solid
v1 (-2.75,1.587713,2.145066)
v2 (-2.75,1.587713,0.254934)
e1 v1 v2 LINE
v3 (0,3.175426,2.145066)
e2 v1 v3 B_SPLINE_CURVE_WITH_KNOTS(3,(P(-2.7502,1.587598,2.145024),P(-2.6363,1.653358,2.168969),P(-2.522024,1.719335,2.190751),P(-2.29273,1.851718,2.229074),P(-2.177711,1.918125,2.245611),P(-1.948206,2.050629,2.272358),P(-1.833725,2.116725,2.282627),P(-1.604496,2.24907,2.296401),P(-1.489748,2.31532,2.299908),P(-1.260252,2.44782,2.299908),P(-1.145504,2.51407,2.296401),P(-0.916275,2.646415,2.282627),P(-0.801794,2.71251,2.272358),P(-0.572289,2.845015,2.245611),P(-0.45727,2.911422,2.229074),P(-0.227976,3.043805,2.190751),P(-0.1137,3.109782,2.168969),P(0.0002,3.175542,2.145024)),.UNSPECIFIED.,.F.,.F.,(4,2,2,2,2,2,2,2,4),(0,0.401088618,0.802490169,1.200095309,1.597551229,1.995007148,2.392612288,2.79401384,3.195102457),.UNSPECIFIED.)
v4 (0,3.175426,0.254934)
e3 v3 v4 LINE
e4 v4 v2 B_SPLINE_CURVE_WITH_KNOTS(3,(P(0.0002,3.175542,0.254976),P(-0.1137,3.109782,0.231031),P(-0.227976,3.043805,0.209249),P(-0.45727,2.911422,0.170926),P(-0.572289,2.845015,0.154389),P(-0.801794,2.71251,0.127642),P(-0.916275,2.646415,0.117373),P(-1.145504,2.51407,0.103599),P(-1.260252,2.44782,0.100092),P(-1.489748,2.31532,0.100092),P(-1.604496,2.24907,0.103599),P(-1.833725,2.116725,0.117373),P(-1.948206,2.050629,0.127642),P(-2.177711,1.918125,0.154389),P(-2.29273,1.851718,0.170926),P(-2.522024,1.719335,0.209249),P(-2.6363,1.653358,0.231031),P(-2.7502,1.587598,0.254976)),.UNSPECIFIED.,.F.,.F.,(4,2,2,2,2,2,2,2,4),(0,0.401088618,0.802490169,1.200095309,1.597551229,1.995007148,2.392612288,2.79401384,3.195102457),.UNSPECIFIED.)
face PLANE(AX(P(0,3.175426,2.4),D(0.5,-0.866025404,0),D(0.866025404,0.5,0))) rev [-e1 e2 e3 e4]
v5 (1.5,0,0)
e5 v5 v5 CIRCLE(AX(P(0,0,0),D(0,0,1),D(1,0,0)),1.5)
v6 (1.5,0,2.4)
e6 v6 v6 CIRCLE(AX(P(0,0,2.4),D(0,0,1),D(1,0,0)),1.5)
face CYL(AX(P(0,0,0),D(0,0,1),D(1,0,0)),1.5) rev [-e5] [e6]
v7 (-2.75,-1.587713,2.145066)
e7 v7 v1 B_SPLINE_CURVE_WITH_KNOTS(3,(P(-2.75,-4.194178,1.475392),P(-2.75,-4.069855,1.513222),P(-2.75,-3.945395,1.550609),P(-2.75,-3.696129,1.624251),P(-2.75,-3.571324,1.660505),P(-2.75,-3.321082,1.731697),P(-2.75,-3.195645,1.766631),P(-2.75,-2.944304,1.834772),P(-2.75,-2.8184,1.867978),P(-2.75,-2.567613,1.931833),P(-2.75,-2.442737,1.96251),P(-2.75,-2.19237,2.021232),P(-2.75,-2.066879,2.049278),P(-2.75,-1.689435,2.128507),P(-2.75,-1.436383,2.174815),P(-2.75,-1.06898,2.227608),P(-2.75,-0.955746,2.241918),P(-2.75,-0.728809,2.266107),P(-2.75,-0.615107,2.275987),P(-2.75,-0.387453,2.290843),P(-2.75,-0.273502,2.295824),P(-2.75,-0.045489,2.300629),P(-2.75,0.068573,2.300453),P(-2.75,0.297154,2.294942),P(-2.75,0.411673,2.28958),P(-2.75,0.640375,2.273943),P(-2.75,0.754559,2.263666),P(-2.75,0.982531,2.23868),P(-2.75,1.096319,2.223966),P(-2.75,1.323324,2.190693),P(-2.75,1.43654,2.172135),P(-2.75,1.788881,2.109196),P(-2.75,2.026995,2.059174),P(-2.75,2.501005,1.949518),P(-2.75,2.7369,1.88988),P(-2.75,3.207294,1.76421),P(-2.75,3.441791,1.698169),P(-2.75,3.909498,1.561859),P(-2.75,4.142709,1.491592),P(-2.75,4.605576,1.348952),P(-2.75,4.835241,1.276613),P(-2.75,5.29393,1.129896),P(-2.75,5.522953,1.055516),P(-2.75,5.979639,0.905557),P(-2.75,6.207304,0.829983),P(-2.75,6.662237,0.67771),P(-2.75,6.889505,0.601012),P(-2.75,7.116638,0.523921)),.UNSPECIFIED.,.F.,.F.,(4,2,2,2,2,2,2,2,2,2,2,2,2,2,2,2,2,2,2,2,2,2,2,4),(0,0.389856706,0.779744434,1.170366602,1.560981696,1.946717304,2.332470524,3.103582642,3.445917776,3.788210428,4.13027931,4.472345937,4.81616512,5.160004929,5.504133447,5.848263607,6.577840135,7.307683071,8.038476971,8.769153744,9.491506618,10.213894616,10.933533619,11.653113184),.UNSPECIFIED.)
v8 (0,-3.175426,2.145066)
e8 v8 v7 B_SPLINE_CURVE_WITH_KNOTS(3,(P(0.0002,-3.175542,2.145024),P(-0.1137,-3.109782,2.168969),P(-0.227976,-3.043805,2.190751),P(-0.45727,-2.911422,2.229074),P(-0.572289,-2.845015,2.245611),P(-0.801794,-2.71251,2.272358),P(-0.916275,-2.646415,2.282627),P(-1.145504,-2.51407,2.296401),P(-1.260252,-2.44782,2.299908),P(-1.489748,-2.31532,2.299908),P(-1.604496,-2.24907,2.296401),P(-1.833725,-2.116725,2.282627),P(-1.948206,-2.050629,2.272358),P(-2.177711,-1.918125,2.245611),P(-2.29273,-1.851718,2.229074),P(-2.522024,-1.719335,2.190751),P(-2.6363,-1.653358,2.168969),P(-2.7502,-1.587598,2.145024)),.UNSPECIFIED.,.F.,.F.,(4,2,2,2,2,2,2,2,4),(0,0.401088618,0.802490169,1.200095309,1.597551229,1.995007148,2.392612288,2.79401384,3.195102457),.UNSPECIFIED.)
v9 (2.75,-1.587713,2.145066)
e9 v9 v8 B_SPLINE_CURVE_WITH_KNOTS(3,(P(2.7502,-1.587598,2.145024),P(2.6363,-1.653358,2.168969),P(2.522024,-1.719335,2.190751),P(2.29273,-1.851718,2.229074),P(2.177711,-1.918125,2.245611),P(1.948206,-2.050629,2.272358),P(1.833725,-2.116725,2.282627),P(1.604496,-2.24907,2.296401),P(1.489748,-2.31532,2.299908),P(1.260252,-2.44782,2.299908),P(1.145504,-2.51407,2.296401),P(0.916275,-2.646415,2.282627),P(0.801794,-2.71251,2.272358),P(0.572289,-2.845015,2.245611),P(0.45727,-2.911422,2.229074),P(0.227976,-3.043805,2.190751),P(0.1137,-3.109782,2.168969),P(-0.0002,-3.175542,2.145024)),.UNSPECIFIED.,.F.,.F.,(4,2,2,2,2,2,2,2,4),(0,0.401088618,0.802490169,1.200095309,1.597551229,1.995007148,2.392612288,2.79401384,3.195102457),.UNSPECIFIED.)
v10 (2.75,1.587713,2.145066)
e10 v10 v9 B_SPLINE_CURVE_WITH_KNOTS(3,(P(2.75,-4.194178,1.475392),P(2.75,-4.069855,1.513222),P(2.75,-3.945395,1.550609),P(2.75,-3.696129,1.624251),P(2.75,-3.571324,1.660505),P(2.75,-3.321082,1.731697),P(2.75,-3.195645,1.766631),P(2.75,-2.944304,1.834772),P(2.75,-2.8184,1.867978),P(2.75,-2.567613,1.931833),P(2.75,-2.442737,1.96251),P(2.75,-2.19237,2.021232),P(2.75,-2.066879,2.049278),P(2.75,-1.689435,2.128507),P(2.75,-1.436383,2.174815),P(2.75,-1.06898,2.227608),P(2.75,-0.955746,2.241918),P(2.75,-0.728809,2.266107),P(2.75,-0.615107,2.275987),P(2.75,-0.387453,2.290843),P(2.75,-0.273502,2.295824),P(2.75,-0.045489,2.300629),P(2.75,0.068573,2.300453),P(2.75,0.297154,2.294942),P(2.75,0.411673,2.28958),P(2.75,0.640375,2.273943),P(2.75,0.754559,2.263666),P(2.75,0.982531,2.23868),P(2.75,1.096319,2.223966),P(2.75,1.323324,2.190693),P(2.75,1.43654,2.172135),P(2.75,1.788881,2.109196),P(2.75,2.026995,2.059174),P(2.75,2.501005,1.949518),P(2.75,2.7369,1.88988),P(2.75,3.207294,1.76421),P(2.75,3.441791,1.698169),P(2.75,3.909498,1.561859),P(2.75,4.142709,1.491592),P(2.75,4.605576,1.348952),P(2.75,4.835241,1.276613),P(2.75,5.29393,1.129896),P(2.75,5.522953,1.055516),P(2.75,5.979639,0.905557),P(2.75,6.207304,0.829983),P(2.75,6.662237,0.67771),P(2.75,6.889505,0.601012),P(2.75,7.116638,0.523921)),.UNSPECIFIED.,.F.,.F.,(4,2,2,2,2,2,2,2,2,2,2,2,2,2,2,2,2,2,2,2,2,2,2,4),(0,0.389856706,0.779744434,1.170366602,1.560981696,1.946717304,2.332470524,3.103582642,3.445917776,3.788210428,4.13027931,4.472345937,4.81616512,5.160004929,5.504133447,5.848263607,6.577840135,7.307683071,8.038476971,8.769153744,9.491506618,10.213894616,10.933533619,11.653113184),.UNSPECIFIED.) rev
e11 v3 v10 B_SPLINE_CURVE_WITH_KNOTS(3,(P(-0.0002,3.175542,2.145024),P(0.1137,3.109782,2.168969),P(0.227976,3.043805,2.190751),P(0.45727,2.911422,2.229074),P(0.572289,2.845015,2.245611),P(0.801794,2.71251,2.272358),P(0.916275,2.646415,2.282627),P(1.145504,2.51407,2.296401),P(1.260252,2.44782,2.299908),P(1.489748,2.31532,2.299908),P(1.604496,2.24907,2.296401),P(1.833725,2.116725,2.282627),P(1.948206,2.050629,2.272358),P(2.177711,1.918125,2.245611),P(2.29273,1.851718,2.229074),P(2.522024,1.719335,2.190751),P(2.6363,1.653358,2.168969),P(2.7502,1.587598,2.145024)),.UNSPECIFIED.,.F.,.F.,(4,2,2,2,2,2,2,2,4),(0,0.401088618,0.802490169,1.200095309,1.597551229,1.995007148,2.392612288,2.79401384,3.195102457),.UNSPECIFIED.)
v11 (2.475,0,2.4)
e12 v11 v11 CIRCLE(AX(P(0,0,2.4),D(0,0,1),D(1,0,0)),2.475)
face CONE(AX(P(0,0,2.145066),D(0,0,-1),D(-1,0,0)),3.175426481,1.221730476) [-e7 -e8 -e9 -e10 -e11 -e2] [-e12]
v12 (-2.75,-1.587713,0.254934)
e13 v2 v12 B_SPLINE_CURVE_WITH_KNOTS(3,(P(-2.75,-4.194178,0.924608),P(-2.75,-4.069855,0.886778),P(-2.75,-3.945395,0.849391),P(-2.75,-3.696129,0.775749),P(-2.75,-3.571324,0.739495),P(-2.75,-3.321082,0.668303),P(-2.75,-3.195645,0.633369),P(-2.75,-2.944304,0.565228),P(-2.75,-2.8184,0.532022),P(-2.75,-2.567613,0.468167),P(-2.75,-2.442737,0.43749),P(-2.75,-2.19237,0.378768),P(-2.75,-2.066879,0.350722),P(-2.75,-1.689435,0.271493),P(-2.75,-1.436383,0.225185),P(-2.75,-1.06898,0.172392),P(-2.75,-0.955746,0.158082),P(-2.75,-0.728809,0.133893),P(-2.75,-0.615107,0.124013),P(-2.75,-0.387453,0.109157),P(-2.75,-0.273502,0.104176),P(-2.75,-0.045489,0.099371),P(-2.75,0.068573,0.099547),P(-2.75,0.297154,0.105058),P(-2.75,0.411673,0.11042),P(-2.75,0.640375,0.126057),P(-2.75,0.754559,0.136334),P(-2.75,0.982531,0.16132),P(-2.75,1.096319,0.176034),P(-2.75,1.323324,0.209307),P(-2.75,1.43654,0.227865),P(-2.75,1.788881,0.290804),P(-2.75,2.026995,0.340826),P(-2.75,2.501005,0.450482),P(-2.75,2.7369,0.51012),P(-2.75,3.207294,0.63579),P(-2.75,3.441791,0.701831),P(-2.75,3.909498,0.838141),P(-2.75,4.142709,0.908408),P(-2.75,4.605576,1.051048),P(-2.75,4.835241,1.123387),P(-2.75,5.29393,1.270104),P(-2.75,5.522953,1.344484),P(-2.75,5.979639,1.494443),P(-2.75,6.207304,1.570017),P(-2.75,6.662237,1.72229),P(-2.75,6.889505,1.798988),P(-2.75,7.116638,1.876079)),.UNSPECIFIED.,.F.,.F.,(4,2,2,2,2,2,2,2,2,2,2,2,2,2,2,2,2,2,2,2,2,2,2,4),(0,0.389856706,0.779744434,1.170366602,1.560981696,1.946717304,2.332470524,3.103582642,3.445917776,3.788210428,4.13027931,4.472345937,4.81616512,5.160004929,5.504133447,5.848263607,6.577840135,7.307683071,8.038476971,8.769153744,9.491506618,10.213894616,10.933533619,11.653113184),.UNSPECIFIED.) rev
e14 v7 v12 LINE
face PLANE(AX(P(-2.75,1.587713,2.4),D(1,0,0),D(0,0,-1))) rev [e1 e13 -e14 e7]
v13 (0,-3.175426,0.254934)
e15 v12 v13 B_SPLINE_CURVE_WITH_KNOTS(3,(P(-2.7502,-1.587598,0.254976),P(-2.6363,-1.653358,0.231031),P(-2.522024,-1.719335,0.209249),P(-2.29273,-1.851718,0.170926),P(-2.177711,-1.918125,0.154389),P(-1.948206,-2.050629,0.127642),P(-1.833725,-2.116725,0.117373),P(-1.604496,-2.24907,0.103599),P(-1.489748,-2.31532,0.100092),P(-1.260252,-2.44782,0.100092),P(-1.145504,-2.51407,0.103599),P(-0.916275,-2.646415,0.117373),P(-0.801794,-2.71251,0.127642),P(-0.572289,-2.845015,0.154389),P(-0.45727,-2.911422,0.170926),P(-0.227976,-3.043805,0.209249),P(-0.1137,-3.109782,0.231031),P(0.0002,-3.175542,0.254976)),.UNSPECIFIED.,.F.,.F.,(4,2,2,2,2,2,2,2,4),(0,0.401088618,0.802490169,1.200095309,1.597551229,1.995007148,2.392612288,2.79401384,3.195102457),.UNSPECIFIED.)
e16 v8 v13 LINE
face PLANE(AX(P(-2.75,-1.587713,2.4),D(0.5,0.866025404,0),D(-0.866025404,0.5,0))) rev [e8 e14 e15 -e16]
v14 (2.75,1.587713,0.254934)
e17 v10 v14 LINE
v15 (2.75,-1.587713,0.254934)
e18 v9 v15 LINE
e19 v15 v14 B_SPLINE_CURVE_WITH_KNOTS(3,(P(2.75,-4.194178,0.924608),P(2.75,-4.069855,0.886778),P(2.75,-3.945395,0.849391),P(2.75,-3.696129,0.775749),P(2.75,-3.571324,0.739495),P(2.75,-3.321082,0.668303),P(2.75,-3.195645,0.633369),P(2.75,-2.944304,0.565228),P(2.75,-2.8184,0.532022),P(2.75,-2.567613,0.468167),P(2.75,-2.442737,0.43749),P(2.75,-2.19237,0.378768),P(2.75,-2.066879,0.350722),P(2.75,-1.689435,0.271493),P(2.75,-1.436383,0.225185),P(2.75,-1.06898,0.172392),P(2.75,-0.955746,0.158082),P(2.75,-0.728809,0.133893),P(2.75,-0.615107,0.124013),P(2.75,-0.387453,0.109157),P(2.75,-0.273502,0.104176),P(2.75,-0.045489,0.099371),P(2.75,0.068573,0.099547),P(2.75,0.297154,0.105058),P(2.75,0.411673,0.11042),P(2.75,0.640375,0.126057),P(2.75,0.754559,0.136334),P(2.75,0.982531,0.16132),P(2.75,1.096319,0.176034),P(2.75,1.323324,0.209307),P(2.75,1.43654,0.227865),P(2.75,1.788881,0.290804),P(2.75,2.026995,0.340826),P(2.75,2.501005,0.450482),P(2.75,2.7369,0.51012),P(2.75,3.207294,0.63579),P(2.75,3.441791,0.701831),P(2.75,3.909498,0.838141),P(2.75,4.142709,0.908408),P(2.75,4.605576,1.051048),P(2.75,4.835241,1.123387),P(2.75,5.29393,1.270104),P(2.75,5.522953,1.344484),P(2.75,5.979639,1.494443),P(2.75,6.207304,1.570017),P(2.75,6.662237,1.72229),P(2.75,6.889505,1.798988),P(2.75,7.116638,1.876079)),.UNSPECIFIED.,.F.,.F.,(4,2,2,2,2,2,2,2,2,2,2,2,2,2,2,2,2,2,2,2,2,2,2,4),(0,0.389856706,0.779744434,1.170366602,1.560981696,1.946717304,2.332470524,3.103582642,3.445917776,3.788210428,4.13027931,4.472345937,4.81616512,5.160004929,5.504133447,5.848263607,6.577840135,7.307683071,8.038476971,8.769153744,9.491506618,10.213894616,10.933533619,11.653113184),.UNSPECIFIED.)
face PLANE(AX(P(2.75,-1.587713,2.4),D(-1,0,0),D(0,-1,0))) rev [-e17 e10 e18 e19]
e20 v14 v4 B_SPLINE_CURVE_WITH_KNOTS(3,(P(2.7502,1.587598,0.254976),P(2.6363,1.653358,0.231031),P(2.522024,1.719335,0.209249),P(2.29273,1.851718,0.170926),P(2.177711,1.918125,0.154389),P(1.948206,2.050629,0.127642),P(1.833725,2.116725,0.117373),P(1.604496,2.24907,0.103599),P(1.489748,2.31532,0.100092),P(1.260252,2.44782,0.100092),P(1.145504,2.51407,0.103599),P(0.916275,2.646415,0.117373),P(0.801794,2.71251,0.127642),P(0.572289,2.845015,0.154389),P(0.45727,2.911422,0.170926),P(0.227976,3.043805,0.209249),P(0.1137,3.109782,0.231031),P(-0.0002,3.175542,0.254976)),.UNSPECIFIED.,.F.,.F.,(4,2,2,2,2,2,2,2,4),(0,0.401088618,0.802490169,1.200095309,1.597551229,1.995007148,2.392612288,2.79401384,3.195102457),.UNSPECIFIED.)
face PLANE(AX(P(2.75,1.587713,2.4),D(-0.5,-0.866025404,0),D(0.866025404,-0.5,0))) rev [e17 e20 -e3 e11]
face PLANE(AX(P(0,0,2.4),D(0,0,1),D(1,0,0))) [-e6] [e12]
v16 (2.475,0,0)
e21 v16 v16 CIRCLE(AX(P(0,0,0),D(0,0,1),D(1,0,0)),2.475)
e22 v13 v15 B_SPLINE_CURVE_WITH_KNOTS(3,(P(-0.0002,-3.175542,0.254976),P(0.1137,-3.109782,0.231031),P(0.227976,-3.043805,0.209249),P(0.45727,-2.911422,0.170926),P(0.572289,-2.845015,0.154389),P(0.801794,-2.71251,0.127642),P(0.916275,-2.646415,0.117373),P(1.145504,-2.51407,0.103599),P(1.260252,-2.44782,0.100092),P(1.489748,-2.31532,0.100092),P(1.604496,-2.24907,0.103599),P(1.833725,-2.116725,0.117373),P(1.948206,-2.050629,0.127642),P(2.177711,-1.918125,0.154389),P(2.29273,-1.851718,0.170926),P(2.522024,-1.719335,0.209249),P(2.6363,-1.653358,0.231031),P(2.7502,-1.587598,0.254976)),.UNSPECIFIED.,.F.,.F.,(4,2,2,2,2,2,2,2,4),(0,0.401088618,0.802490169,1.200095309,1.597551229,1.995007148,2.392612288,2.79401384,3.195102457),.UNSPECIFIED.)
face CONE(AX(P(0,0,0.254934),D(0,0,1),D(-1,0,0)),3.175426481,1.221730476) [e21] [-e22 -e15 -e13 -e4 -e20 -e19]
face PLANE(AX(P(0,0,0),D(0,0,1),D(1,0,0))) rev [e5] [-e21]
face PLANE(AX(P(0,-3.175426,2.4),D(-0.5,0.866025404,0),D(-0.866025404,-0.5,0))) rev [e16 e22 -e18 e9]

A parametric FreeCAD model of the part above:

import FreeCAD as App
import Part
import Sketcher
Q = App.Units.Quantity

doc = App.newDocument("Part")
params = doc.addObject("Spreadsheet::Sheet", "Params")
for row, (alias, value) in enumerate([
    ("pad1_length", "2.4 mm"),
    ("groove_angle", "360 deg"),
    ("sketch3_diameter", "3 mm"),
], start=1):
    params.set(f"A{row}", alias)
    params.set(f"B{row}", "=" + value)
    params.setAlias(f"B{row}", alias)

body = doc.addObject("PartDesign::Body", "Body")

# Sketch on XY plane
sketch1 = body.newObject("Sketcher::SketchObject", "Sketch")
sketch1.AttachmentSupport = (doc.getObject("XY_Plane"), [""])
sketch1.MapMode = "FlatFace"
sketch1.addGeometry(Part.LineSegment(App.Vector(0, 3.2, 0), App.Vector(-2.8, 1.6, 0)), False)
sketch1.addGeometry(Part.LineSegment(App.Vector(-2.8, 1.6, 0), App.Vector(-2.8, -1.6, 0)), False)
sketch1.addGeometry(Part.LineSegment(App.Vector(-2.8, -1.6, 0), App.Vector(0, -3.2, 0)), False)
sketch1.addGeometry(Part.LineSegment(App.Vector(0, -3.2, 0), App.Vector(2.8, -1.6, 0)), False)
sketch1.addGeometry(Part.LineSegment(App.Vector(2.8, -1.6, 0), App.Vector(2.8, 1.6, 0)), False)
sketch1.addGeometry(Part.LineSegment(App.Vector(2.8, 1.6, 0), App.Vector(0, 3.2, 0)), False)
sketch1.addConstraint(Sketcher.Constraint("Coincident", 0, 2, 1, 1))
sketch1.addConstraint(Sketcher.Constraint("Coincident", 1, 2, 2, 1))
sketch1.addConstraint(Sketcher.Constraint("Coincident", 2, 2, 3, 1))
sketch1.addConstraint(Sketcher.Constraint("Coincident", 3, 2, 4, 1))
sketch1.addConstraint(Sketcher.Constraint("Coincident", 4, 2, 5, 1))
sketch1.addConstraint(Sketcher.Constraint("Coincident", 5, 2, 0, 1))
sketch1.addConstraint(Sketcher.Constraint("Vertical", 1))
sketch1.addConstraint(Sketcher.Constraint("Vertical", 4))
sketch1.addConstraint(Sketcher.Constraint("Symmetric", 0, 2, 3, 2, -1, 1))
sketch1.addConstraint(Sketcher.Constraint("Symmetric", 2, 2, 5, 2, -1, 1))
sketch1.addConstraint(Sketcher.Constraint("PointOnObject", 2, 2, -2))
sketch1.addConstraint(Sketcher.Constraint("Parallel", 2, 5))
sketch1.addConstraint(Sketcher.Constraint("Horizontal", 1, 2, 3, 2))
sketch1.addConstraint(Sketcher.Constraint("Angle", 0, Q("-150 deg")))
sketch1.addConstraint(Sketcher.Constraint("DistanceX", 1, 2, 3, 2, Q("5.5 mm")))
sketch1.addConstraint(Sketcher.Constraint("DistanceY", 1, 2, 1, 1, Q("3.175426 mm")))
pad1 = body.newObject("PartDesign::Pad", "Pad")
pad1.Profile = sketch1
pad1.setExpression("Length", "Params.pad1_length")

# Sketch on YZ plane
sketch2 = body.newObject("Sketcher::SketchObject", "Sketch001")
sketch2.AttachmentSupport = (doc.getObject("YZ_Plane"), [""])
sketch2.MapMode = "FlatFace"
sketch2.addGeometry(Part.LineSegment(App.Vector(-3.18, 2.15, 0), App.Vector(-2.48, 2.4, 0)), False)
sketch2.addGeometry(Part.LineSegment(App.Vector(-2.48, 2.4, 0), App.Vector(-3.18, 2.4, 0)), False)
sketch2.addGeometry(Part.LineSegment(App.Vector(-3.18, 2.4, 0), App.Vector(-3.18, 2.15, 0)), False)
sketch2.addConstraint(Sketcher.Constraint("Coincident", 0, 2, 1, 1))
sketch2.addConstraint(Sketcher.Constraint("Coincident", 1, 2, 2, 1))
sketch2.addConstraint(Sketcher.Constraint("Coincident", 2, 2, 0, 1))
sketch2.addConstraint(Sketcher.Constraint("Horizontal", 1))
sketch2.addConstraint(Sketcher.Constraint("Vertical", 2))
sketch2.addConstraint(Sketcher.Constraint("Angle", 0, Q("20 deg")))
sketch2.addConstraint(Sketcher.Constraint("DistanceY", -1, 1, 0, 2, Q("2.4 mm")))
sketch2.addConstraint(Sketcher.Constraint("DistanceX", 0, 2, -1, 1, Q("2.475 mm")))
sketch2.addConstraint(Sketcher.Constraint("Distance", 0, Q("0.745378 mm")))
groove = body.newObject("PartDesign::Groove", "Groove")
groove.Profile = sketch2
groove.ReferenceAxis = (sketch2, ["V_Axis"])
groove.setExpression("Angle", "Params.groove_angle")
doc.recompute()

datumplane = body.newObject("PartDesign::Plane", "DatumPlane")
datumplane.AttachmentSupport = (doc.getObject("XY_Plane"), [""])
datumplane.MapMode = "FlatFace"
datumplane.AttachmentOffset = App.Placement(App.Vector(0, 0, 1.2), App.Rotation())
mirrored = body.newObject("PartDesign::Mirrored", "Mirrored")
mirrored.Originals = [groove]
mirrored.MirrorPlane = (datumplane, [""])
body.Tip = mirrored

# Sketch on XY plane
sketch3 = body.newObject("Sketcher::SketchObject", "Sketch002")
sketch3.AttachmentSupport = (doc.getObject("XY_Plane"), [""])
sketch3.MapMode = "FlatFace"
sketch3.AttachmentOffset = App.Placement(App.Vector(0, 0, 2.4), App.Rotation())
sketch3.addGeometry(Part.Circle(App.Vector(0, 0, 0), App.Vector(0, 0, 1), 1.5), False)
sketch3.addConstraint(Sketcher.Constraint("Coincident", 0, 3, -1, 1))
sketch3.addConstraint(Sketcher.Constraint("Diameter", 0, Q("3 mm")))
sketch3.setExpression("Constraints[1]", "Params.sketch3_diameter")
pocket1 = body.newObject("PartDesign::Pocket", "Pocket")
pocket1.Profile = sketch3
pocket1.Type = "ThroughAll"

doc.recompute()
